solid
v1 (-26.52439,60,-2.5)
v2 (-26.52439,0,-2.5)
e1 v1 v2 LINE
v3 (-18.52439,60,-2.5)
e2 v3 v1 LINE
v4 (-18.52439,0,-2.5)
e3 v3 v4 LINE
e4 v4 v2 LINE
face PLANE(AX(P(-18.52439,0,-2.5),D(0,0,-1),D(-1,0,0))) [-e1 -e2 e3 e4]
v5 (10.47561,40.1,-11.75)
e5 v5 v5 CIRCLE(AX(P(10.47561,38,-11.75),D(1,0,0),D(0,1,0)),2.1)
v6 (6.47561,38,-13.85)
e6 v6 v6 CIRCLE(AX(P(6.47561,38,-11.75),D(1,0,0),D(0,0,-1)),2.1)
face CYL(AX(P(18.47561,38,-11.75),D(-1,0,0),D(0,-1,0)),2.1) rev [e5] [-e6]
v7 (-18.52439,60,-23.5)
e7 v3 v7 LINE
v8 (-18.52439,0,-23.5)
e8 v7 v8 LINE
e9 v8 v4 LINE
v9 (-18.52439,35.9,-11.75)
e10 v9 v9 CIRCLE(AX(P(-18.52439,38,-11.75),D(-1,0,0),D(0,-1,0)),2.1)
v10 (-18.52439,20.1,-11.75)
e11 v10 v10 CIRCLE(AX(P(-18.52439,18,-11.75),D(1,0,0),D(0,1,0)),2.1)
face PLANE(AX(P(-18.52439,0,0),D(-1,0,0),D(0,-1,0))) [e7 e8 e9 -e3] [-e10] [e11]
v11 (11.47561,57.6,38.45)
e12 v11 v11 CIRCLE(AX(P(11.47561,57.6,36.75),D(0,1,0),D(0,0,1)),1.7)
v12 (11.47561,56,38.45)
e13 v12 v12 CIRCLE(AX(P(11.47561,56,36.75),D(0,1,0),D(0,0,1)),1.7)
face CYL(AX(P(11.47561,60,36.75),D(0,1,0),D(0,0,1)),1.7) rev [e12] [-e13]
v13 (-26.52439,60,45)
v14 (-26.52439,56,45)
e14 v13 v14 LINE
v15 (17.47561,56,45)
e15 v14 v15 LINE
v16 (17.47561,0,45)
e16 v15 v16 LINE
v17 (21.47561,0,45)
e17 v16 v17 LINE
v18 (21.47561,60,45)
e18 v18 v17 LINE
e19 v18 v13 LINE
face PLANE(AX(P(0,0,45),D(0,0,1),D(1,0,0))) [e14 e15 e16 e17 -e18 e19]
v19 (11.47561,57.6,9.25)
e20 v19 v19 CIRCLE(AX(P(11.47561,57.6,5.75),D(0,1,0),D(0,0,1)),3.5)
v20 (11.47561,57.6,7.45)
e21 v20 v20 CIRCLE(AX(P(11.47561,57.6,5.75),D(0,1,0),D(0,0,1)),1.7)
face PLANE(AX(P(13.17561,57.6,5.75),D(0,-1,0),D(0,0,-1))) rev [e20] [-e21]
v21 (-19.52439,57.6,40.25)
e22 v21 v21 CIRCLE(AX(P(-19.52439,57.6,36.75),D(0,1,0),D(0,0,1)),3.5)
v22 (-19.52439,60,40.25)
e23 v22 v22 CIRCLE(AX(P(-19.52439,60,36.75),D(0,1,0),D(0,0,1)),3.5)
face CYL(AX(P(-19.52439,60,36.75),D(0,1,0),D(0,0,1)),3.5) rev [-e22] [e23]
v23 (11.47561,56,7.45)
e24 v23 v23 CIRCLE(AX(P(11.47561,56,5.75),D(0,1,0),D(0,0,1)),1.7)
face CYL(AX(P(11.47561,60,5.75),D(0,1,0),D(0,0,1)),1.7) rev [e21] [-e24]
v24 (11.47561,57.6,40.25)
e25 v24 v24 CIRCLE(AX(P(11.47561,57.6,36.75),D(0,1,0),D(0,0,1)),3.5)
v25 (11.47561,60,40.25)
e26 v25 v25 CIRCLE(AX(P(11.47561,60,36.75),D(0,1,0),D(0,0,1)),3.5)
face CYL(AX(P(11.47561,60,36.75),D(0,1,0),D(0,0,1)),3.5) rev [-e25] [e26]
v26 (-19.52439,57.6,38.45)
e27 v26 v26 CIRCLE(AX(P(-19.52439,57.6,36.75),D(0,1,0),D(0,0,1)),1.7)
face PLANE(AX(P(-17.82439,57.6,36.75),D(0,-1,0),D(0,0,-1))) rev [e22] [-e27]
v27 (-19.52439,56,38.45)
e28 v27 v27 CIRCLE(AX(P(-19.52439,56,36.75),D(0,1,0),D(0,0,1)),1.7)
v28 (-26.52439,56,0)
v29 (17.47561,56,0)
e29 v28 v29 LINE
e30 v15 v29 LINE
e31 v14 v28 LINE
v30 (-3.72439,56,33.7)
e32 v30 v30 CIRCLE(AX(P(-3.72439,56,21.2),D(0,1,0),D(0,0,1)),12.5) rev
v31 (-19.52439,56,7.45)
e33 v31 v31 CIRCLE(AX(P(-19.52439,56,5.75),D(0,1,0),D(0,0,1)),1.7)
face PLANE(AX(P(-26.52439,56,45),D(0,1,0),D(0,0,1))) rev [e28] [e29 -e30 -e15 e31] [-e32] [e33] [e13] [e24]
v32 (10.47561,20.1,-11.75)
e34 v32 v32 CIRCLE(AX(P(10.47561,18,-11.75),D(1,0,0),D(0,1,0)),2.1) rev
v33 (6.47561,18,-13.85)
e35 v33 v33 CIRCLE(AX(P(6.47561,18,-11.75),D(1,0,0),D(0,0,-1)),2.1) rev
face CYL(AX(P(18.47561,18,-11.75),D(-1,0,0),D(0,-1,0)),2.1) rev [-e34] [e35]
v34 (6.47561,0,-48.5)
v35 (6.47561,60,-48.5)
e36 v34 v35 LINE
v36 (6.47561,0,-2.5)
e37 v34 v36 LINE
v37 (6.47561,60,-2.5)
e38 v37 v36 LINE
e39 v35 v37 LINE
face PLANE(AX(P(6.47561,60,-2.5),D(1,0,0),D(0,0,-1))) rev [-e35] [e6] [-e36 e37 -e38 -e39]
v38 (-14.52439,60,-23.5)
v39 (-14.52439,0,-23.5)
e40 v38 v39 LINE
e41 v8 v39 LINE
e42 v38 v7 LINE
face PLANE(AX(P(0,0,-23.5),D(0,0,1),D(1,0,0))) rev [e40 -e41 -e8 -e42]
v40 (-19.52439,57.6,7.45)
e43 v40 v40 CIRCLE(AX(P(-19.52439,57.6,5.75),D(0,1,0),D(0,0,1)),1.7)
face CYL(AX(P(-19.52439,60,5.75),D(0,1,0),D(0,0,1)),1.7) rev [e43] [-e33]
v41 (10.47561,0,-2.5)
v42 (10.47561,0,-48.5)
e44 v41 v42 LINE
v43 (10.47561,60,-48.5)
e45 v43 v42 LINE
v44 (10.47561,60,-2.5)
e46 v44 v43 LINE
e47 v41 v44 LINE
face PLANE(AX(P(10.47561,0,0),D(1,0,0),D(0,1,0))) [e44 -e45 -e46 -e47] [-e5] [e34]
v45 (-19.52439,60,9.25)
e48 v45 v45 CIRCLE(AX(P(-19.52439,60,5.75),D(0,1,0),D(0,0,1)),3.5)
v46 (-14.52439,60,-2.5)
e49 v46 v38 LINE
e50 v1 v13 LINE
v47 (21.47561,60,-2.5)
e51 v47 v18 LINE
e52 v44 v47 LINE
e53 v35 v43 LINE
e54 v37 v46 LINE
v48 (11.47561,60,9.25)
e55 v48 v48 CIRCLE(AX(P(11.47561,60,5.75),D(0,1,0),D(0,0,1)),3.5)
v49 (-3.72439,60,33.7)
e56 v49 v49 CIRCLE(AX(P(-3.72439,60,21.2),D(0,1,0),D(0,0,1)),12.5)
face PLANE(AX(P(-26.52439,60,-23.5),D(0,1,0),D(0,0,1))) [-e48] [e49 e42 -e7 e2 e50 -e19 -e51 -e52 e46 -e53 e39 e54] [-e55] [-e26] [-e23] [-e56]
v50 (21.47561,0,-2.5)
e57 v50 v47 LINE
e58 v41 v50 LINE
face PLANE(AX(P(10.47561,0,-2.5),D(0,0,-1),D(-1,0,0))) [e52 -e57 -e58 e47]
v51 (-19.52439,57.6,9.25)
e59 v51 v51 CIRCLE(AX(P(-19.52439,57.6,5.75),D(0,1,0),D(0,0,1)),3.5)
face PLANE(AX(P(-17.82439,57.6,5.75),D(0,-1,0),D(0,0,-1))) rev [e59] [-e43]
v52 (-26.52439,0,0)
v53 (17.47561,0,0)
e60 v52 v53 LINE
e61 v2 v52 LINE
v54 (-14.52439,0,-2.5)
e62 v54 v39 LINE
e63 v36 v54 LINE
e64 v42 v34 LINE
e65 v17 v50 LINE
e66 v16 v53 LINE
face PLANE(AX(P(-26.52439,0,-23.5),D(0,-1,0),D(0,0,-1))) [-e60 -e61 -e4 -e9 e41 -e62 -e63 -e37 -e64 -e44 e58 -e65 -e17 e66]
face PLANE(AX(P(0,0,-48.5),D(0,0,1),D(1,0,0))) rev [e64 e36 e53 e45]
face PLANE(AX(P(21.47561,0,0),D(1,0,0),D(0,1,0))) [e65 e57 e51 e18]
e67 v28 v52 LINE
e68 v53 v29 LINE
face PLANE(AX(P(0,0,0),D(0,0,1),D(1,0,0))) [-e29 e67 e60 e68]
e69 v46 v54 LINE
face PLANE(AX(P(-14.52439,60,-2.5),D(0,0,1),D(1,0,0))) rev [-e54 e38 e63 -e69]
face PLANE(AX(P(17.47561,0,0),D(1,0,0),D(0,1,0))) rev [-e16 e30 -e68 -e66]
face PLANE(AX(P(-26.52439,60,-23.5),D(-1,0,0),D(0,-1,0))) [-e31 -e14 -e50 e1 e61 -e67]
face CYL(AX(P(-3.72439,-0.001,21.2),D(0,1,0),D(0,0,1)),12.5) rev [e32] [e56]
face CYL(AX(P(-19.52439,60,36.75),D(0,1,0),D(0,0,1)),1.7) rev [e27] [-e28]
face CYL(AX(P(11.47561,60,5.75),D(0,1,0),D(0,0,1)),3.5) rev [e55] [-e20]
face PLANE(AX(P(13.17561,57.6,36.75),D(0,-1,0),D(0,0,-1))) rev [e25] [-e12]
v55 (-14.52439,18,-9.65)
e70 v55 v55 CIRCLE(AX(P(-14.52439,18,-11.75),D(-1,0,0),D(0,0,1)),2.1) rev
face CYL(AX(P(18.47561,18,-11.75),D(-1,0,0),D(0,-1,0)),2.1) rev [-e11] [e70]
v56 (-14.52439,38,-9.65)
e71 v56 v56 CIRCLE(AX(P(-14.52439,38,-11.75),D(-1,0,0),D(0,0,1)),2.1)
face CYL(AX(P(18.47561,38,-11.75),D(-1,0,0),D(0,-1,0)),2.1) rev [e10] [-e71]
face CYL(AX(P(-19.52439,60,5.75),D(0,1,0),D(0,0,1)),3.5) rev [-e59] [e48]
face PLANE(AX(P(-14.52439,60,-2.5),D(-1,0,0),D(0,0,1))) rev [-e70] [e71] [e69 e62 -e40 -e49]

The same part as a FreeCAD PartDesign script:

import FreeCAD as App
import Part
import Sketcher
from FreeCAD import Vector
Q = App.Units.Quantity


def add_polygon(sketch, points):
    """Adds a closed chain of lines whose ends are joined by coincident constraints."""
    first, n = sketch.GeometryCount, len(points)
    for a, b in zip(points, points[1:] + points[:1]):
        sketch.addGeometry(Part.LineSegment(App.Vector(*a, 0), App.Vector(*b, 0)), False)
    for i in range(n):
        sketch.addConstraint(Sketcher.Constraint("Coincident", first + i, 2, first + (i + 1) % n, 1))

doc = App.newDocument("Part")
body = doc.addObject("PartDesign::Body", "Body")

# Sketch on XY plane
sketch1 = doc.addObject("Sketcher::SketchObject", "Sketch")
body.addObject(sketch1)
sketch1.AttachmentSupport = (doc.XY_Plane, [""])
sketch1.MapMode = "FlatFace"
add_polygon(sketch1, [(-27, 60), (-27, 0), (18, 0), (18, 60)])  # lines 0-3
sketch1.addConstraint(Sketcher.Constraint("Vertical", 0))
sketch1.addConstraint(Sketcher.Constraint("Horizontal", 1))
sketch1.addConstraint(Sketcher.Constraint("Vertical", 2))
sketch1.addConstraint(Sketcher.Constraint("Horizontal", 3))
sketch1.addConstraint(Sketcher.Constraint("PointOnObject", 0, 2, -1))
sketch1.addConstraint(Sketcher.Constraint("DistanceX", 1, 1, 1, 2, Q("45 mm")))
sketch1.addConstraint(Sketcher.Constraint("DistanceY", 0, 2, 0, 1, Q("60 mm")))
sketch1.addConstraint(Sketcher.Constraint("DistanceX", 0, 2, -1, 1, Q("26.52439 mm")))
pad1 = doc.addObject("PartDesign::Pad", "Pad")
body.addObject(pad1)
pad1.Profile = sketch1
pad1.Length = 23.5
pad1.Reversed = True

# Sketch on XY plane
sketch2 = doc.addObject("Sketcher::SketchObject", "Sketch001")
body.addObject(sketch2)
sketch2.AttachmentSupport = (doc.XY_Plane, [""])
sketch2.MapMode = "FlatFace"
add_polygon(sketch2, [(-26.5, 60), (-26.5, 56), (18.5, 56), (18.5, 60)])  # lines 0-3
sketch2.addConstraint(Sketcher.Constraint("Vertical", 0))
sketch2.addConstraint(Sketcher.Constraint("Horizontal", 1))
sketch2.addConstraint(Sketcher.Constraint("Vertical", 2))
sketch2.addConstraint(Sketcher.Constraint("Horizontal", 3))
sketch2.addConstraint(Sketcher.Constraint("DistanceX", 1, 1, 1, 2, Q("45 mm")))
sketch2.addConstraint(Sketcher.Constraint("DistanceY", 0, 2, 0, 1, Q("4 mm")))
sketch2.addConstraint(Sketcher.Constraint("DistanceY", -1, 1, 0, 2, Q("56 mm")))
sketch2.addConstraint(Sketcher.Constraint("DistanceX", 0, 2, -1, 1, Q("26.52439 mm")))
pad2 = doc.addObject("PartDesign::Pad", "Pad001")
body.addObject(pad2)
pad2.Profile = sketch2
pad2.Length = 45

# Sketch on XZ plane
sketch3 = doc.addObject("Sketcher::SketchObject", "Sketch002")
body.addObject(sketch3)
sketch3.AttachmentSupport = (doc.XZ_Plane, [""])
sketch3.MapMode = "FlatFace"
add_polygon(sketch3, [(-15, -2), (-15, -24), (6, -24), (6, -2)])  # lines 0-3
sketch3.addConstraint(Sketcher.Constraint("Vertical", 0))
sketch3.addConstraint(Sketcher.Constraint("Horizontal", 1))
sketch3.addConstraint(Sketcher.Constraint("Vertical", 2))
sketch3.addConstraint(Sketcher.Constraint("Horizontal", 3))
sketch3.addConstraint(Sketcher.Constraint("Equal", 3, 0))
sketch3.addConstraint(Sketcher.Constraint("DistanceX", 1, 1, 1, 2, Q("21 mm")))
sketch3.addConstraint(Sketcher.Constraint("DistanceY", 0, 2, -1, 1, Q("23.5 mm")))
sketch3.addConstraint(Sketcher.Constraint("DistanceX", 0, 2, -1, 1, Q("14.52439 mm")))
pocket1 = doc.addObject("PartDesign::Pocket", "Pocket")
body.addObject(pocket1)
pocket1.Profile = sketch3
pocket1.Type = "ThroughAll"

# Sketch on XZ plane
sketch4 = doc.addObject("Sketcher::SketchObject", "Sketch003")
body.addObject(sketch4)
sketch4.AttachmentSupport = (doc.XZ_Plane, [""])
sketch4.MapMode = "FlatFace"
sketch4.AttachmentOffset = App.Placement(Vector(0, 0, -60), App.Rotation())
sketch4.addGeometry(Part.Circle(Vector(-4, 21, 0), Vector(0, 0, 1), 12), False)
sketch4.addConstraint(Sketcher.Constraint("Diameter", 0, Q("25 mm")))
sketch4.addConstraint(Sketcher.Constraint("DistanceY", -1, 1, 0, 3, Q("21.2 mm")))
sketch4.addConstraint(Sketcher.Constraint("DistanceX", 0, 3, -1, 1, Q("3.72439 mm")))
pocket2 = doc.addObject("PartDesign::Pocket", "Pocket001")
body.addObject(pocket2)
pocket2.Profile = sketch4
pocket2.Type = "UpToFirst"
pocket2.Reversed = True

# Sketch on YZ plane
sketch5 = doc.addObject("Sketcher::SketchObject", "Sketch004")
body.addObject(sketch5)
sketch5.AttachmentSupport = (doc.YZ_Plane, [""])
sketch5.MapMode = "FlatFace"
sketch5.AttachmentOffset = App.Placement(Vector(0, 0, 18.47561), App.Rotation())
add_polygon(sketch5, [(60, -2), (0, -2), (0, -24), (60, -24)])  # lines 0-3
sketch5.addConstraint(Sketcher.Constraint("Horizontal", 0))
sketch5.addConstraint(Sketcher.Constraint("Vertical", 1))
sketch5.addConstraint(Sketcher.Constraint("Horizontal", 2))
sketch5.addConstraint(Sketcher.Constraint("Vertical", 3))
sketch5.addConstraint(Sketcher.Constraint("PointOnObject", 0, 2, -2))
sketch5.addConstraint(Sketcher.Constraint("DistanceX", 0, 2, 0, 1, Q("60 mm")))
sketch5.addConstraint(Sketcher.Constraint("DistanceY", 1, 2, 1, 1, Q("21 mm")))
sketch5.addConstraint(Sketcher.Constraint("DistanceY", 0, 2, -1, 1, Q("2.5 mm")))
pocket3 = doc.addObject("PartDesign::Pocket", "Pocket002")
body.addObject(pocket3)
pocket3.Profile = sketch5
pocket3.Length = 8

# Sketch on YZ plane
sketch6 = doc.addObject("Sketcher::SketchObject", "Sketch005")
body.addObject(sketch6)
sketch6.AttachmentSupport = (doc.YZ_Plane, [""])
sketch6.MapMode = "FlatFace"
sketch6.AttachmentOffset = App.Placement(Vector(0, 0, -26.52439), App.Rotation())
add_polygon(sketch6, [(60, -24), (0, -24), (0, -2), (60, -2)])  # lines 0-3
sketch6.addConstraint(Sketcher.Constraint("Horizontal", 0))
sketch6.addConstraint(Sketcher.Constraint("Vertical", 1))
sketch6.addConstraint(Sketcher.Constraint("Horizontal", 2))
sketch6.addConstraint(Sketcher.Constraint("Vertical", 3))
sketch6.addConstraint(Sketcher.Constraint("PointOnObject", 0, 2, -2))
sketch6.addConstraint(Sketcher.Constraint("DistanceX", 0, 2, 0, 1, Q("60 mm")))
sketch6.addConstraint(Sketcher.Constraint("DistanceY", 1, 1, 1, 2, Q("21 mm")))
sketch6.addConstraint(Sketcher.Constraint("DistanceY", 0, 2, -1, 1, Q("23.5 mm")))
pocket4 = doc.addObject("PartDesign::Pocket", "Pocket003")
body.addObject(pocket4)
pocket4.Profile = sketch6
pocket4.Length = 8
pocket4.Reversed = True

# Sketch on XY plane
sketch7 = doc.addObject("Sketcher::SketchObject", "Sketch006")
body.addObject(sketch7)
sketch7.AttachmentSupport = (doc.XY_Plane, [""])
sketch7.MapMode = "FlatFace"
sketch7.AttachmentOffset = App.Placement(Vector(0, 0, -23.5), App.Rotation())
add_polygon(sketch7, [(10.5, 60), (10.5, 0), (6.5, 0), (6.5, 60)])  # lines 0-3
sketch7.addConstraint(Sketcher.Constraint("Vertical", 0))
sketch7.addConstraint(Sketcher.Constraint("Horizontal", 1))
sketch7.addConstraint(Sketcher.Constraint("Vertical", 2))
sketch7.addConstraint(Sketcher.Constraint("Horizontal", 3))
sketch7.addConstraint(Sketcher.Constraint("PointOnObject", 0, 2, -1))
sketch7.addConstraint(Sketcher.Constraint("DistanceX", 1, 2, 1, 1, Q("4 mm")))
sketch7.addConstraint(Sketcher.Constraint("DistanceY", 0, 2, 0, 1, Q("60 mm")))
sketch7.addConstraint(Sketcher.Constraint("DistanceX", -1, 1, 0, 2, Q("10.47561 mm")))
pad3 = doc.addObject("PartDesign::Pad", "Pad002")
body.addObject(pad3)
pad3.Profile = sketch7
pad3.Length = 25
pad3.Reversed = True

# Sketch on XZ plane
sketch8 = doc.addObject("Sketcher::SketchObject", "Sketch007")
body.addObject(sketch8)
sketch8.AttachmentSupport = (doc.XZ_Plane, [""])
sketch8.MapMode = "FlatFace"
sketch8.AttachmentOffset = App.Placement(Vector(0, 0, -60), App.Rotation())
sketch8.addGeometry(Part.Circle(Vector(-19.5, 5.8, 0), Vector(0, 0, 1), 1.7), False)
sketch8.addGeometry(Part.Circle(Vector(11.5, 36.8, 0), Vector(0, 0, 1), 1.7), False)
sketch8.addGeometry(Part.Circle(Vector(-19.5, 36.8, 0), Vector(0, 0, 1), 1.7), False)
sketch8.addGeometry(Part.Circle(Vector(11.5, 5.8, 0), Vector(0, 0, 1), 1.7), False)
sketch8.addConstraint(Sketcher.Constraint("Equal", 0, 1))
sketch8.addConstraint(Sketcher.Constraint("Equal", 1, 2))
sketch8.addConstraint(Sketcher.Constraint("Equal", 2, 3))
sketch8.addConstraint(Sketcher.Constraint("Horizontal", 1, 3, 2, 3))
sketch8.addConstraint(Sketcher.Constraint("Horizontal", 0, 3, 3, 3))
sketch8.addConstraint(Sketcher.Constraint("Vertical", 0, 3, 2, 3))
sketch8.addConstraint(Sketcher.Constraint("Vertical", 1, 3, 3, 3))
sketch8.addConstraint(Sketcher.Constraint("Diameter", 0, Q("3.4 mm")))
sketch8.addConstraint(Sketcher.Constraint("DistanceX", 0, 3, 1, 3, Q("31 mm")))
sketch8.addConstraint(Sketcher.Constraint("DistanceY", 0, 3, 1, 3, Q("31 mm")))
sketch8.addConstraint(Sketcher.Constraint("DistanceY", -1, 1, 0, 3, Q("5.75 mm")))
sketch8.addConstraint(Sketcher.Constraint("DistanceX", 0, 3, -1, 1, Q("19.52439 mm")))
doc.recompute()
hole = doc.addObject("PartDesign::Hole", "Hole")
body.addObject(hole)
hole.Profile = sketch8
hole.ThreadType = "None"
hole.Diameter = 3.4
hole.DepthType = "Dimension"
hole.Depth = 4.001
hole.DrillPoint = "Flat"
hole.HoleCutType = "Counterbore"
hole.HoleCutDiameter = 7
hole.HoleCutDepth = 2.4
hole.Reversed = True

# Sketch on XZ plane
sketch9 = doc.addObject("Sketcher::SketchObject", "Sketch008")
body.addObject(sketch9)
sketch9.AttachmentSupport = (doc.XZ_Plane, [""])
sketch9.MapMode = "FlatFace"
sketch9.addGeometry(Part.Circle(Vector(-42.9, 35.3, 0), Vector(0, 0, 1), 1.7), False)
sketch9.addConstraint(Sketcher.Constraint("Diameter", 0, Q("3.4 mm")))
sketch9.addConstraint(Sketcher.Constraint("DistanceX", 0, 3, -1, 1, Q("42.937475 mm")))
sketch9.addConstraint(Sketcher.Constraint("DistanceY", -1, 1, 0, 3, Q("35.255714 mm")))
doc.recompute()
hole2 = doc.addObject("PartDesign::Hole", "Hole001")
body.addObject(hole2)
hole2.Profile = sketch9
hole2.ThreadType = "None"
hole2.Diameter = 3.4
hole2.DepthType = "Dimension"
hole2.Depth = 4.001
hole2.DrillPoint = "Flat"
hole2.HoleCutType = "Counterbore"
hole2.HoleCutDiameter = 7
hole2.HoleCutDepth = 2.4
hole2.Reversed = True

# Sketch on YZ plane
sketch10 = doc.addObject("Sketcher::SketchObject", "Sketch009")
body.addObject(sketch10)
sketch10.AttachmentSupport = (doc.YZ_Plane, [""])
sketch10.MapMode = "FlatFace"
sketch10.AttachmentOffset = App.Placement(Vector(0, 0, -18.52439), App.Rotation())
sketch10.addGeometry(Part.Circle(Vector(38, -11.8, 0), Vector(0, 0, 1), 2.1), False)
sketch10.addGeometry(Part.Circle(Vector(18, -11.8, 0), Vector(0, 0, 1), 2.1), False)
sketch10.addConstraint(Sketcher.Constraint("Equal", 0, 1))
sketch10.addConstraint(Sketcher.Constraint("Horizontal", 0, 3, 1, 3))
sketch10.addConstraint(Sketcher.Constraint("Diameter", 0, Q("4.2 mm")))
sketch10.addConstraint(Sketcher.Constraint("DistanceX", -1, 1, 0, 3, Q("38 mm")))
sketch10.addConstraint(Sketcher.Constraint("DistanceX", -1, 1, 1, 3, Q("18 mm")))
sketch10.addConstraint(Sketcher.Constraint("DistanceY", 0, 3, -1, 1, Q("11.75 mm")))
pocket5 = doc.addObject("PartDesign::Pocket", "Pocket004")
body.addObject(pocket5)
pocket5.Profile = sketch10
pocket5.Type = "ThroughAll"
pocket5.Reversed = True

# Sketch on YZ plane
sketch11 = doc.addObject("Sketcher::SketchObject", "Sketch010")
body.addObject(sketch11)
sketch11.AttachmentSupport = (doc.YZ_Plane, [""])
sketch11.MapMode = "FlatFace"
sketch11.AttachmentOffset = App.Placement(Vector(0, 0, 18.47561), App.Rotation())
add_polygon(sketch11, [(60, 45), (0, 45), (0, -2), (60, -2)])  # lines 0-3
sketch11.addConstraint(Sketcher.Constraint("Horizontal", 0))
sketch11.addConstraint(Sketcher.Constraint("Vertical", 1))
sketch11.addConstraint(Sketcher.Constraint("Horizontal", 2))
sketch11.addConstraint(Sketcher.Constraint("Vertical", 3))
sketch11.addConstraint(Sketcher.Constraint("PointOnObject", 0, 2, -2))
sketch11.addConstraint(Sketcher.Constraint("DistanceX", 0, 2, 0, 1, Q("60 mm")))
sketch11.addConstraint(Sketcher.Constraint("DistanceY", 1, 2, 1, 1, Q("47.5 mm")))
sketch11.addConstraint(Sketcher.Constraint("DistanceY", -1, 1, 0, 2, Q("45 mm")))
pad4 = doc.addObject("PartDesign::Pad", "Pad003")
body.addObject(pad4)
pad4.Profile = sketch11
pad4.Type = "TwoLengths"
pad4.Length = 3
pad4.Length2 = 1

doc.recompute()
